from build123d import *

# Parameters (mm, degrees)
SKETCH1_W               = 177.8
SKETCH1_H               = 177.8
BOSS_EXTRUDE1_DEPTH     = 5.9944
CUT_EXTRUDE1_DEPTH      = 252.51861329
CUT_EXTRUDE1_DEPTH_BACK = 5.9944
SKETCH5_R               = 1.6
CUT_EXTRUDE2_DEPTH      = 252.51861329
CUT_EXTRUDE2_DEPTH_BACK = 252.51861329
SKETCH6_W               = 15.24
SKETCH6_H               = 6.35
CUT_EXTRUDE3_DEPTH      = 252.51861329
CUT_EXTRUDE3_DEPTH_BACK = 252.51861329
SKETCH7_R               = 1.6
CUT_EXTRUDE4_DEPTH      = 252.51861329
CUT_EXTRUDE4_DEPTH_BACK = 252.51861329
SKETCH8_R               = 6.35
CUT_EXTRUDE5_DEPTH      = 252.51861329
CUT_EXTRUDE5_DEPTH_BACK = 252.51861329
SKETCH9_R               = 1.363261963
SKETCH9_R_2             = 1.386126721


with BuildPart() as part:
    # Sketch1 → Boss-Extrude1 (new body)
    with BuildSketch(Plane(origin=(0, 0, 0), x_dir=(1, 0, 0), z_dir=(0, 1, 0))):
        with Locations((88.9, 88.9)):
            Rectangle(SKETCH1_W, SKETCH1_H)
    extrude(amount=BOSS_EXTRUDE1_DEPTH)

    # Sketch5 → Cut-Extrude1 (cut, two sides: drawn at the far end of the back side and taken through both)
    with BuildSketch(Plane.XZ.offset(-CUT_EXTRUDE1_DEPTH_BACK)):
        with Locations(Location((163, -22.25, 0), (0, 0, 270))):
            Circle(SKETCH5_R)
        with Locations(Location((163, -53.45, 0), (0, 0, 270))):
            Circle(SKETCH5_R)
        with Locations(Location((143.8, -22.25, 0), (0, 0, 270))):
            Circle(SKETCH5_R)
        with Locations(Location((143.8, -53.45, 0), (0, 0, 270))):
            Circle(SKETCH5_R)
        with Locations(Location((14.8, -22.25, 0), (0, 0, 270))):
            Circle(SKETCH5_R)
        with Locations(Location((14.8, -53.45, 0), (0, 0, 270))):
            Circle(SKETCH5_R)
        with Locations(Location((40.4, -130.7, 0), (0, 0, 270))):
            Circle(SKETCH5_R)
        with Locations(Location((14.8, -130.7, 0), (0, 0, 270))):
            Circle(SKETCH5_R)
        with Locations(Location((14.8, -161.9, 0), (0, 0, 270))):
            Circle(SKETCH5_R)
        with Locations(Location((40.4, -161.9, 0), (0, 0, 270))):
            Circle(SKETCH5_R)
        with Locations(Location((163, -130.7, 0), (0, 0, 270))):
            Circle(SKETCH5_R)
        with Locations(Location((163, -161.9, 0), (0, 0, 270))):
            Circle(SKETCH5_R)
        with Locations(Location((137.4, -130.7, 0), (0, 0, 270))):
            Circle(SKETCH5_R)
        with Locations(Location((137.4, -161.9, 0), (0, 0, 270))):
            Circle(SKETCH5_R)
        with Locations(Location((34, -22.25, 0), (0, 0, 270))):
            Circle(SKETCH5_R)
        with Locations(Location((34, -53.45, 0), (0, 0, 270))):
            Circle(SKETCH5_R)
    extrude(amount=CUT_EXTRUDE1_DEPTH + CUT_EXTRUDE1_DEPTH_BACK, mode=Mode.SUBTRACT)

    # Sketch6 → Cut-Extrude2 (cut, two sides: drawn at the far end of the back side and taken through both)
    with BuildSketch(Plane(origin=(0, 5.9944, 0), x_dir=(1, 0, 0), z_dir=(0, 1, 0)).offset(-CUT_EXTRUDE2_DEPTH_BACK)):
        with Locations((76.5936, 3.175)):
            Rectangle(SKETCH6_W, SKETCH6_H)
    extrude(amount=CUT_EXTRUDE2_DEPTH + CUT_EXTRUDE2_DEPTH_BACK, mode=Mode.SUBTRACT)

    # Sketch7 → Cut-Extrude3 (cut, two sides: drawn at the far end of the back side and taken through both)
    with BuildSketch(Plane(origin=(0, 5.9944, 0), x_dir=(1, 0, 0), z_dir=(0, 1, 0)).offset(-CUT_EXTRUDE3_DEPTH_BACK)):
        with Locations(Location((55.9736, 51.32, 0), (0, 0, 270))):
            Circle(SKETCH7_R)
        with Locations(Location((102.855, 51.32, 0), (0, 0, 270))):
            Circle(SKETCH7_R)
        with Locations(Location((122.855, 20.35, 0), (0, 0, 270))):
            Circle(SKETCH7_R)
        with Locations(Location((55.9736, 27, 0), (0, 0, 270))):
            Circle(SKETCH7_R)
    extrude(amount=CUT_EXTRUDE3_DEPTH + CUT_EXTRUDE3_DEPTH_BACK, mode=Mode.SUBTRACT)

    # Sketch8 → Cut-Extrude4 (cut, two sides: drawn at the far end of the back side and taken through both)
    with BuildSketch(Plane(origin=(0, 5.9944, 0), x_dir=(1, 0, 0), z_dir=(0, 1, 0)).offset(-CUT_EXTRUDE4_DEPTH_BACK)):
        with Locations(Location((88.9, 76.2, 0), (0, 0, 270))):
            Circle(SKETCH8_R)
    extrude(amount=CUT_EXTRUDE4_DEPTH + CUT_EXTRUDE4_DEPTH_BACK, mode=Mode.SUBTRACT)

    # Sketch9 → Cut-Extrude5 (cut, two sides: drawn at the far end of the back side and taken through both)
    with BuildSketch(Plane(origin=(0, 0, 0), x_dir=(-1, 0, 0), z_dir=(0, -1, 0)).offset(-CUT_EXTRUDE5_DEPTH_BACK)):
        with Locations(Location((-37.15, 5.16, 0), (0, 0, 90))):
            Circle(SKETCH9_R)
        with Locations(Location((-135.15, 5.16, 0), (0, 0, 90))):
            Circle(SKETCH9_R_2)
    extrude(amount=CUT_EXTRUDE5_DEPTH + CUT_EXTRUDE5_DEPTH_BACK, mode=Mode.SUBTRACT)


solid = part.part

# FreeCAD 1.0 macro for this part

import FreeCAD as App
import Part
import Sketcher
from FreeCAD import Vector
Q = App.Units.Quantity


def add_polygon(sketch, points):
    """Adds a closed chain of lines whose ends are joined by coincident constraints."""
    first, n = sketch.GeometryCount, len(points)
    for a, b in zip(points, points[1:] + points[:1]):
        sketch.addGeometry(Part.LineSegment(App.Vector(*a, 0), App.Vector(*b, 0)), False)
    for i in range(n):
        sketch.addConstraint(Sketcher.Constraint("Coincident", first + i, 2, first + (i + 1) % n, 1))

doc = App.newDocument("Part")
body = doc.addObject("PartDesign::Body", "Body")

# Sketch on XZ plane
sketch1 = body.newObject("Sketcher::SketchObject", "Sketch")
sketch1.AttachmentSupport = (doc.getObject("XZ_Plane"), [""])
sketch1.MapMode = "FlatFace"
add_polygon(sketch1, [(0, -177.8), (0, 0), (177.8, 0), (177.8, -177.8)])  # lines 0-3
sketch1.addConstraint([
    Sketcher.Constraint("Vertical", 0),
    Sketcher.Constraint("Horizontal", 1),
    Sketcher.Constraint("Vertical", 2),
    Sketcher.Constraint("Horizontal", 3),
    Sketcher.Constraint("Coincident", 0, 2, -1, 1),
    Sketcher.Constraint("Equal", 3, 0),
    Sketcher.Constraint("DistanceX", 1, 1, 1, 2, Q("7 in")),
])
pad1 = body.newObject("PartDesign::Pad", "Pad")
pad1.Profile = sketch1
pad1.Length = Q("0.236 in")
pad1.Reversed = True

# Sketch on XZ plane
sketch2 = body.newObject("Sketcher::SketchObject", "Sketch001")
sketch2.AttachmentSupport = (doc.getObject("XZ_Plane"), [""])
sketch2.MapMode = "FlatFace"
sketch2.addGeometry([
    Part.Circle(Vector(163, -22.25, 0), Vector(0, 0, 1), 1.6),  # 0
    Part.Circle(Vector(163, -53.45, 0), Vector(0, 0, 1), 1.6),  # 1
    Part.Circle(Vector(143.8, -22.25, 0), Vector(0, 0, 1), 1.6),  # 2
    Part.Circle(Vector(143.8, -53.45, 0), Vector(0, 0, 1), 1.6),  # 3
    Part.Circle(Vector(14.8, -22.25, 0), Vector(0, 0, 1), 1.6),  # 4
    Part.Circle(Vector(14.8, -53.45, 0), Vector(0, 0, 1), 1.6),  # 5
    Part.Circle(Vector(40.4, -130.7, 0), Vector(0, 0, 1), 1.6),  # 6
    Part.Circle(Vector(14.8, -130.7, 0), Vector(0, 0, 1), 1.6),  # 7
    Part.Circle(Vector(14.8, -161.9, 0), Vector(0, 0, 1), 1.6),  # 8
    Part.Circle(Vector(40.4, -161.9, 0), Vector(0, 0, 1), 1.6),  # 9
    Part.Circle(Vector(163, -130.7, 0), Vector(0, 0, 1), 1.6),  # 10
    Part.Circle(Vector(163, -161.9, 0), Vector(0, 0, 1), 1.6),  # 11
    Part.Circle(Vector(137.4, -130.7, 0), Vector(0, 0, 1), 1.6),  # 12
    Part.Circle(Vector(137.4, -161.9, 0), Vector(0, 0, 1), 1.6),  # 13
    Part.Circle(Vector(34, -22.25, 0), Vector(0, 0, 1), 1.6),  # 14
    Part.Circle(Vector(34, -53.45, 0), Vector(0, 0, 1), 1.6),  # 15
], False)
sketch2.addConstraint([
    Sketcher.Constraint("Equal", 0, 1),
    Sketcher.Constraint("Equal", 1, 2),
    Sketcher.Constraint("Equal", 2, 3),
    Sketcher.Constraint("Equal", 3, 4),
    Sketcher.Constraint("Equal", 4, 5),
    Sketcher.Constraint("Equal", 5, 6),
    Sketcher.Constraint("Equal", 6, 7),
    Sketcher.Constraint("Equal", 7, 8),
    Sketcher.Constraint("Equal", 8, 9),
    Sketcher.Constraint("Equal", 9, 10),
    Sketcher.Constraint("Equal", 10, 11),
    Sketcher.Constraint("Equal", 11, 12),
    Sketcher.Constraint("Equal", 12, 13),
    Sketcher.Constraint("Equal", 13, 14),
    Sketcher.Constraint("Equal", 14, 15),
    Sketcher.Constraint("Horizontal", 0, 3, 2, 3),
    Sketcher.Constraint("Horizontal", 1, 3, 3, 3),
    Sketcher.Constraint("Horizontal", 2, 3, 4, 3),
    Sketcher.Constraint("Horizontal", 3, 3, 5, 3),
    Sketcher.Constraint("Horizontal", 6, 3, 7, 3),
    Sketcher.Constraint("Horizontal", 8, 3, 9, 3),
    Sketcher.Constraint("Horizontal", 7, 3, 10, 3),
    Sketcher.Constraint("Horizontal", 9, 3, 11, 3),
    Sketcher.Constraint("Horizontal", 10, 3, 12, 3),
    Sketcher.Constraint("Horizontal", 11, 3, 13, 3),
    Sketcher.Constraint("Horizontal", 4, 3, 14, 3),
    Sketcher.Constraint("Horizontal", 5, 3, 15, 3),
    Sketcher.Constraint("Vertical", 0, 3, 1, 3),
    Sketcher.Constraint("Vertical", 2, 3, 3, 3),
    Sketcher.Constraint("Vertical", 4, 3, 5, 3),
    Sketcher.Constraint("Vertical", 5, 3, 7, 3),
    Sketcher.Constraint("Vertical", 7, 3, 8, 3),
    Sketcher.Constraint("Vertical", 6, 3, 9, 3),
    Sketcher.Constraint("Vertical", 1, 3, 10, 3),
    Sketcher.Constraint("Vertical", 10, 3, 11, 3),
    Sketcher.Constraint("Vertical", 12, 3, 13, 3),
    Sketcher.Constraint("Vertical", 14, 3, 15, 3),
    Sketcher.Constraint("Diameter", 0, Q("3.2 mm")),
    Sketcher.Constraint("DistanceX", -1, 1, 0, 3, Q("163 mm")),
    Sketcher.Constraint("DistanceY", 0, 3, -1, 1, Q("22.25 mm")),
    Sketcher.Constraint("DistanceY", 1, 3, -1, 1, Q("53.45 mm")),
    Sketcher.Constraint("DistanceX", -1, 1, 2, 3, Q("143.8 mm")),
    Sketcher.Constraint("DistanceX", -1, 1, 4, 3, Q("14.8 mm")),
    Sketcher.Constraint("DistanceX", -1, 1, 6, 3, Q("40.4 mm")),
    Sketcher.Constraint("DistanceY", 6, 3, -1, 1, Q("130.7 mm")),
    Sketcher.Constraint("DistanceY", 8, 3, -1, 1, Q("161.9 mm")),
    Sketcher.Constraint("DistanceX", -1, 1, 12, 3, Q("137.4 mm")),
    Sketcher.Constraint("DistanceX", -1, 1, 14, 3, Q("34 mm")),
])
pocket1 = body.newObject("PartDesign::Pocket", "Pocket")
pocket1.Profile = sketch2
pocket1.Type = "ThroughAll"
pocket1.Midplane = True

# Sketch on XZ plane
sketch3 = body.newObject("Sketcher::SketchObject", "Sketch002")
sketch3.AttachmentSupport = (doc.getObject("XZ_Plane"), [""])
sketch3.MapMode = "FlatFace"
sketch3.AttachmentOffset = App.Placement(Vector(0, 0, -0.236 * 25.4), App.Rotation())
add_polygon(sketch3, [(68.9736, -6.35), (68.9736, 0), (84.2136, 0), (84.2136, -6.35)])  # lines 0-3
sketch3.addConstraint([
    Sketcher.Constraint("Vertical", 0),
    Sketcher.Constraint("Horizontal", 1),
    Sketcher.Constraint("Vertical", 2),
    Sketcher.Constraint("Horizontal", 3),
    Sketcher.Constraint("PointOnObject", 0, 2, -1),
    Sketcher.Constraint("DistanceX", 1, 1, 1, 2, Q("0.6 in")),
    Sketcher.Constraint("DistanceY", 0, 1, 0, 2, Q("0.25 in")),
    Sketcher.Constraint("DistanceX", -1, 1, 0, 2, Q("68.9736 mm")),
])
pocket2 = body.newObject("PartDesign::Pocket", "Pocket001")
pocket2.Profile = sketch3
pocket2.Type = "ThroughAll"
pocket2.Midplane = True

# Sketch on XZ plane
sketch4 = body.newObject("Sketcher::SketchObject", "Sketch003")
sketch4.AttachmentSupport = (doc.getObject("XZ_Plane"), [""])
sketch4.MapMode = "FlatFace"
sketch4.AttachmentOffset = App.Placement(Vector(0, 0, -0.236 * 25.4), App.Rotation())
sketch4.addGeometry([
    Part.Circle(Vector(55.9736, -51.32, 0), Vector(0, 0, 1), 1.6),
    Part.Circle(Vector(102.855, -51.32, 0), Vector(0, 0, 1), 1.6),
    Part.Circle(Vector(122.855, -20.35, 0), Vector(0, 0, 1), 1.6),
    Part.Circle(Vector(55.9736, -27, 0), Vector(0, 0, 1), 1.6),
], False)
sketch4.addConstraint([
    Sketcher.Constraint("Equal", 0, 1),
    Sketcher.Constraint("Equal", 1, 2),
    Sketcher.Constraint("Equal", 2, 3),
    Sketcher.Constraint("Horizontal", 0, 3, 1, 3),
    Sketcher.Constraint("Vertical", 0, 3, 3, 3),
    Sketcher.Constraint("Diameter", 0, Q("3.2 mm")),
    Sketcher.Constraint("DistanceX", -1, 1, 0, 3, Q("55.9736 mm")),
    Sketcher.Constraint("DistanceY", 0, 3, -1, 1, Q("51.32 mm")),
    Sketcher.Constraint("DistanceX", -1, 1, 1, 3, Q("102.855 mm")),
    Sketcher.Constraint("DistanceX", -1, 1, 2, 3, Q("122.855 mm")),
    Sketcher.Constraint("DistanceY", 2, 3, -1, 1, Q("20.35 mm")),
    Sketcher.Constraint("DistanceY", 3, 3, -1, 1, Q("27 mm")),
])
pocket3 = body.newObject("PartDesign::Pocket", "Pocket002")
pocket3.Profile = sketch4
pocket3.Type = "ThroughAll"
pocket3.Midplane = True

# Sketch on XZ plane
sketch5 = body.newObject("Sketcher::SketchObject", "Sketch004")
sketch5.AttachmentSupport = (doc.getObject("XZ_Plane"), [""])
sketch5.MapMode = "FlatFace"
sketch5.AttachmentOffset = App.Placement(Vector(0, 0, -0.236 * 25.4), App.Rotation())
sketch5.addGeometry(Part.Circle(Vector(88.9, -76.2, 0), Vector(0, 0, 1), 6.35), False)
sketch5.addConstraint([
    Sketcher.Constraint("Diameter", 0, Q("0.5 in")),
    Sketcher.Constraint("DistanceY", 0, 3, -1, 1, Q("3 in")),
    Sketcher.Constraint("DistanceX", -1, 1, 0, 3, Q("3.5 in")),
])
pocket4 = body.newObject("PartDesign::Pocket", "Pocket003")
pocket4.Profile = sketch5
pocket4.Type = "ThroughAll"
pocket4.Midplane = True

# Sketch on XZ plane
sketch6 = body.newObject("Sketcher::SketchObject", "Sketch005")
sketch6.AttachmentSupport = (doc.getObject("XZ_Plane"), [""])
sketch6.MapMode = "FlatFace"
sketch6.addGeometry([
    Part.Circle(Vector(37.15, -5.16, 0), Vector(0, 0, 1), 1.363262),
    Part.Circle(Vector(135.15, -5.16, 0), Vector(0, 0, 1), 1.386127),
], False)
sketch6.addConstraint([
    Sketcher.Constraint("Horizontal", 0, 3, 1, 3),
    Sketcher.Constraint("Diameter", 0, Q("2.726524 mm")),
    Sketcher.Constraint("Diameter", 1, Q("2.772253 mm")),
    Sketcher.Constraint("DistanceX", -1, 1, 0, 3, Q("37.15 mm")),
    Sketcher.Constraint("DistanceY", 0, 3, -1, 1, Q("5.16 mm")),
    Sketcher.Constraint("DistanceX", -1, 1, 1, 3, Q("135.15 mm")),
])
pocket5 = body.newObject("PartDesign::Pocket", "Pocket004")
pocket5.Profile = sketch6
pocket5.Type = "ThroughAll"
pocket5.Midplane = True

doc.recompute()
